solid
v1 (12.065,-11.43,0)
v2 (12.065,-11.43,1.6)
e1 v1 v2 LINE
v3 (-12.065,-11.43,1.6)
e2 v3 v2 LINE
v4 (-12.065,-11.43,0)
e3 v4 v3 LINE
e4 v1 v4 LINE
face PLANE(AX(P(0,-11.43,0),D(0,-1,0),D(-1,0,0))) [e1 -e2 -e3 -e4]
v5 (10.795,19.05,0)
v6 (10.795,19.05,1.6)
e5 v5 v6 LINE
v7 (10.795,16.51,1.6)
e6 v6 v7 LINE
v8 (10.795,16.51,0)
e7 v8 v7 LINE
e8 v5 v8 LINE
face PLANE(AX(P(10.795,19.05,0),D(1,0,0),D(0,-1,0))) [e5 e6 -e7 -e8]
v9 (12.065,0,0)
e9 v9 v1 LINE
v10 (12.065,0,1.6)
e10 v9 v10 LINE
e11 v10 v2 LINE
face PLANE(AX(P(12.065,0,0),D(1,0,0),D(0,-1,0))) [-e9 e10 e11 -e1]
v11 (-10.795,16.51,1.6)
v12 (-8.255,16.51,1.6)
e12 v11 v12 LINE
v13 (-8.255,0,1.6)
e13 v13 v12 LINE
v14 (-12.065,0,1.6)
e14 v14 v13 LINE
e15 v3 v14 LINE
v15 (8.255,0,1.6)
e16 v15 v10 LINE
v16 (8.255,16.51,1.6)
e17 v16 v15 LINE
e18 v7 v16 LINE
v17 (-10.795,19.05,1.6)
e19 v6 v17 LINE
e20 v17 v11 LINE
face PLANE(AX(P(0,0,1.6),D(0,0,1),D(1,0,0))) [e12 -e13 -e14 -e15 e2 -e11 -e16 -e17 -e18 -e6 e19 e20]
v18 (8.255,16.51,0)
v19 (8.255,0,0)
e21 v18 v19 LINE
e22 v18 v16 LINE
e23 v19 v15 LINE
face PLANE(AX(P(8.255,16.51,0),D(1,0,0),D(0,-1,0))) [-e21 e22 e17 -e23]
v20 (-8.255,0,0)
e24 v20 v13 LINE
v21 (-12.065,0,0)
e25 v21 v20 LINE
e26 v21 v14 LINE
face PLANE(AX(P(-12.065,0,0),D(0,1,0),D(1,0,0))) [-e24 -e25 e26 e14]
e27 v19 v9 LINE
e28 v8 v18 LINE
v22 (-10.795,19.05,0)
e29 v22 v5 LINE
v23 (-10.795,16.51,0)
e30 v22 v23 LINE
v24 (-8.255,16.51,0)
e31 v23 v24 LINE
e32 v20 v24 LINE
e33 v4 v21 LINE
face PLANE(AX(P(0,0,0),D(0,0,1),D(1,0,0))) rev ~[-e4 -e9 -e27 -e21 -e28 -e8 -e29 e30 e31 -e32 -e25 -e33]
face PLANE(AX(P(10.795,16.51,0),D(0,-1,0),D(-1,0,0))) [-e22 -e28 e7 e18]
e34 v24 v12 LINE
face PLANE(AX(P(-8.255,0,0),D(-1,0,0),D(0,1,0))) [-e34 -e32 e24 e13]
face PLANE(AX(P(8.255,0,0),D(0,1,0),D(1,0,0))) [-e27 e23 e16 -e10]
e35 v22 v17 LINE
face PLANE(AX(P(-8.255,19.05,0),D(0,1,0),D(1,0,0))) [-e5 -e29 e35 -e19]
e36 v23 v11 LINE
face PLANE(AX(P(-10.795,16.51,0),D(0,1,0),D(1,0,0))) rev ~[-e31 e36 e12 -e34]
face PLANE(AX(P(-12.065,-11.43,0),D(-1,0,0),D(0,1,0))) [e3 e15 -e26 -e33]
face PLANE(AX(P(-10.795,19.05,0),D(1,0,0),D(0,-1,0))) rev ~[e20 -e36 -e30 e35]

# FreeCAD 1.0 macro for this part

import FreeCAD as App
import Part
import Sketcher

V = App.Vector
Q = App.Units.Quantity


def add_polygon(sketch, points):
    """Adds a closed chain of lines whose ends are joined by coincident constraints."""
    first, n = sketch.GeometryCount, len(points)
    for a, b in zip(points, points[1:] + points[:1]):
        sketch.addGeometry(Part.LineSegment(App.Vector(*a, 0), App.Vector(*b, 0)), False)
    for i in range(n):
        sketch.addConstraint(Sketcher.Constraint("Coincident", first + i, 2, first + (i + 1) % n, 1))

doc = App.newDocument("Part")
body = doc.addObject("PartDesign::Body", "Body")

# Sketch on XY plane
sketch1 = body.newObject("Sketcher::SketchObject", "Sketch")
sketch1.AttachmentSupport = (doc.getObject("XY_Plane"), [""])
sketch1.MapMode = "FlatFace"
add_polygon(sketch1, [(-8.255, 0), (-12.065, 0), (-12.065, -11.43), (12.065, -11.43), (12.065, 0), (8.255, 0), (8.255, 16.51), (10.795, 16.51), (10.795, 19.05), (-10.795, 19.05), (-10.795, 16.51), (-8.255, 16.51)])  # lines 0-11
sketch1.addConstraint(Sketcher.Constraint("Horizontal", 0))
sketch1.addConstraint(Sketcher.Constraint("Vertical", 1))
sketch1.addConstraint(Sketcher.Constraint("Horizontal", 2))
sketch1.addConstraint(Sketcher.Constraint("Vertical", 3))
sketch1.addConstraint(Sketcher.Constraint("Horizontal", 4))
sketch1.addConstraint(Sketcher.Constraint("Vertical", 5))
sketch1.addConstraint(Sketcher.Constraint("Horizontal", 6))
sketch1.addConstraint(Sketcher.Constraint("Vertical", 7))
sketch1.addConstraint(Sketcher.Constraint("Horizontal", 8))
sketch1.addConstraint(Sketcher.Constraint("Vertical", 9))
sketch1.addConstraint(Sketcher.Constraint("Horizontal", 10))
sketch1.addConstraint(Sketcher.Constraint("Vertical", 11))
sketch1.addConstraint(Sketcher.Constraint("Symmetric", 0, 2, 3, 2, -1, 1))
sketch1.addConstraint(Sketcher.Constraint("Symmetric", 6, 2, 9, 2, -2))
sketch1.addConstraint(Sketcher.Constraint("Symmetric", 4, 2, 11, 2, -2))
sketch1.addConstraint(Sketcher.Constraint("Equal", 10, 7))
sketch1.addConstraint(Sketcher.Constraint("DistanceX", 6, 1, 6, 2, Q("0.1 in")))
sketch1.addConstraint(Sketcher.Constraint("DistanceX", 2, 1, 2, 2, Q("0.95 in")))
sketch1.addConstraint(Sketcher.Constraint("DistanceY", 1, 2, 1, 1, Q("0.45 in")))
sketch1.addConstraint(Sketcher.Constraint("DistanceY", 5, 1, 5, 2, Q("0.65 in")))
sketch1.addConstraint(Sketcher.Constraint("DistanceX", 8, 2, 5, 2, Q("0.75 in")))
pad1 = body.newObject("PartDesign::Pad", "Pad")
pad1.Profile = sketch1
pad1.Length = Q("0.0629921 in")

doc.recompute()
